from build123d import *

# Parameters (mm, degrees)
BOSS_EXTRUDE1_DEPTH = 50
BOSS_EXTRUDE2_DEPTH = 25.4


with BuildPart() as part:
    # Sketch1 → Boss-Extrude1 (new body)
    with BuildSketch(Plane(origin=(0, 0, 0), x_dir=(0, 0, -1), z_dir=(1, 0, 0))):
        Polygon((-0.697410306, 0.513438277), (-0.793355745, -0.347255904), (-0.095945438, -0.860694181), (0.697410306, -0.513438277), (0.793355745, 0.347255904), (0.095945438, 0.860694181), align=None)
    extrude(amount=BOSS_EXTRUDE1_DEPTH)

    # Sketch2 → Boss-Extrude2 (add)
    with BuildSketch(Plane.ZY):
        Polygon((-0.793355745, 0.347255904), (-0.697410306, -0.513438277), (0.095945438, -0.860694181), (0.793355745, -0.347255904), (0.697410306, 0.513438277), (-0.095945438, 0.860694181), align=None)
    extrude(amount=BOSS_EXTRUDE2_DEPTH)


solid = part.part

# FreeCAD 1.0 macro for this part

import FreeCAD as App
import Part
import Sketcher
Q = App.Units.Quantity


def add_polygon(sketch, points):
    """Adds a closed chain of lines whose ends are joined by coincident constraints."""
    first, n = sketch.GeometryCount, len(points)
    for a, b in zip(points, points[1:] + points[:1]):
        sketch.addGeometry(Part.LineSegment(App.Vector(*a, 0), App.Vector(*b, 0)), False)
    for i in range(n):
        sketch.addConstraint(Sketcher.Constraint("Coincident", first + i, 2, first + (i + 1) % n, 1))

doc = App.newDocument("Part")
params = doc.addObject("Spreadsheet::Sheet", "Params")
for row, (alias, value) in enumerate([
    ("pad1_length", "50 mm"),
    ("pad2_length", "25.4 mm"),
], start=1):
    params.set(f"A{row}", alias)
    params.set(f"B{row}", "=" + value)
    params.setAlias(f"B{row}", alias)

body = doc.addObject("PartDesign::Body", "Body")

# Sketch on YZ plane
sketch1 = doc.addObject("Sketcher::SketchObject", "Sketch")
body.addObject(sketch1)
sketch1.AttachmentSupport = (doc.YZ_Plane, [""])
sketch1.MapMode = "FlatFace"
add_polygon(sketch1, [(0.5, 0.7), (-0.3, 0.8), (-0.9, 0.1), (-0.5, -0.7), (0.3, -0.8), (0.9, -0.1)])  # lines 0-5
sketch1.addConstraint([
    Sketcher.Constraint("Symmetric", 0, 2, 3, 2, -1, 1),
    Sketcher.Constraint("Symmetric", 1, 2, 4, 2, -1, 1),
    Sketcher.Constraint("Symmetric", 2, 2, 5, 2, -1, 1),
    Sketcher.Constraint("Equal", 0, 1),
    Sketcher.Constraint("Equal", 1, 2),
    Sketcher.Constraint("DistanceY", 3, 2, 1, 2, Q("0.889301 mm")),
    Sketcher.Constraint("DistanceX", 2, 2, -1, 1, Q("0.513438 mm")),
    Sketcher.Constraint("DistanceY", 2, 2, -1, 1, Q("0.69741 mm")),
    Sketcher.Constraint("DistanceX", 1, 2, 0, 2, Q("0.513438 mm")),
])
pad1 = doc.addObject("PartDesign::Pad", "Pad")
body.addObject(pad1)
pad1.Profile = sketch1
pad1.setExpression("Length", "Params.pad1_length")

# Sketch on YZ plane
sketch2 = doc.addObject("Sketcher::SketchObject", "Sketch001")
body.addObject(sketch2)
sketch2.AttachmentSupport = (doc.YZ_Plane, [""])
sketch2.MapMode = "FlatFace"
add_polygon(sketch2, [(0.3, -0.8), (-0.5, -0.7), (-0.9, 0.1), (-0.3, 0.8), (0.5, 0.7), (0.9, -0.1)])  # lines 0-5
sketch2.addConstraint([
    Sketcher.Constraint("Symmetric", 0, 2, 3, 2, -1, 1),
    Sketcher.Constraint("Symmetric", 1, 2, 4, 2, -1, 1),
    Sketcher.Constraint("Symmetric", 2, 2, 5, 2, -1, 1),
    Sketcher.Constraint("Equal", 0, 1),
    Sketcher.Constraint("Equal", 1, 2),
    Sketcher.Constraint("DistanceY", 4, 2, 2, 2, Q("0.889301 mm")),
    Sketcher.Constraint("DistanceX", 0, 2, -1, 1, Q("0.513438 mm")),
    Sketcher.Constraint("DistanceY", 0, 2, -1, 1, Q("0.69741 mm")),
    Sketcher.Constraint("DistanceX", 1, 2, 2, 2, Q("0.513438 mm")),
])
pad2 = doc.addObject("PartDesign::Pad", "Pad001")
body.addObject(pad2)
pad2.Profile = sketch2
pad2.setExpression("Length", "Params.pad2_length")
pad2.Reversed = True

doc.recompute()
